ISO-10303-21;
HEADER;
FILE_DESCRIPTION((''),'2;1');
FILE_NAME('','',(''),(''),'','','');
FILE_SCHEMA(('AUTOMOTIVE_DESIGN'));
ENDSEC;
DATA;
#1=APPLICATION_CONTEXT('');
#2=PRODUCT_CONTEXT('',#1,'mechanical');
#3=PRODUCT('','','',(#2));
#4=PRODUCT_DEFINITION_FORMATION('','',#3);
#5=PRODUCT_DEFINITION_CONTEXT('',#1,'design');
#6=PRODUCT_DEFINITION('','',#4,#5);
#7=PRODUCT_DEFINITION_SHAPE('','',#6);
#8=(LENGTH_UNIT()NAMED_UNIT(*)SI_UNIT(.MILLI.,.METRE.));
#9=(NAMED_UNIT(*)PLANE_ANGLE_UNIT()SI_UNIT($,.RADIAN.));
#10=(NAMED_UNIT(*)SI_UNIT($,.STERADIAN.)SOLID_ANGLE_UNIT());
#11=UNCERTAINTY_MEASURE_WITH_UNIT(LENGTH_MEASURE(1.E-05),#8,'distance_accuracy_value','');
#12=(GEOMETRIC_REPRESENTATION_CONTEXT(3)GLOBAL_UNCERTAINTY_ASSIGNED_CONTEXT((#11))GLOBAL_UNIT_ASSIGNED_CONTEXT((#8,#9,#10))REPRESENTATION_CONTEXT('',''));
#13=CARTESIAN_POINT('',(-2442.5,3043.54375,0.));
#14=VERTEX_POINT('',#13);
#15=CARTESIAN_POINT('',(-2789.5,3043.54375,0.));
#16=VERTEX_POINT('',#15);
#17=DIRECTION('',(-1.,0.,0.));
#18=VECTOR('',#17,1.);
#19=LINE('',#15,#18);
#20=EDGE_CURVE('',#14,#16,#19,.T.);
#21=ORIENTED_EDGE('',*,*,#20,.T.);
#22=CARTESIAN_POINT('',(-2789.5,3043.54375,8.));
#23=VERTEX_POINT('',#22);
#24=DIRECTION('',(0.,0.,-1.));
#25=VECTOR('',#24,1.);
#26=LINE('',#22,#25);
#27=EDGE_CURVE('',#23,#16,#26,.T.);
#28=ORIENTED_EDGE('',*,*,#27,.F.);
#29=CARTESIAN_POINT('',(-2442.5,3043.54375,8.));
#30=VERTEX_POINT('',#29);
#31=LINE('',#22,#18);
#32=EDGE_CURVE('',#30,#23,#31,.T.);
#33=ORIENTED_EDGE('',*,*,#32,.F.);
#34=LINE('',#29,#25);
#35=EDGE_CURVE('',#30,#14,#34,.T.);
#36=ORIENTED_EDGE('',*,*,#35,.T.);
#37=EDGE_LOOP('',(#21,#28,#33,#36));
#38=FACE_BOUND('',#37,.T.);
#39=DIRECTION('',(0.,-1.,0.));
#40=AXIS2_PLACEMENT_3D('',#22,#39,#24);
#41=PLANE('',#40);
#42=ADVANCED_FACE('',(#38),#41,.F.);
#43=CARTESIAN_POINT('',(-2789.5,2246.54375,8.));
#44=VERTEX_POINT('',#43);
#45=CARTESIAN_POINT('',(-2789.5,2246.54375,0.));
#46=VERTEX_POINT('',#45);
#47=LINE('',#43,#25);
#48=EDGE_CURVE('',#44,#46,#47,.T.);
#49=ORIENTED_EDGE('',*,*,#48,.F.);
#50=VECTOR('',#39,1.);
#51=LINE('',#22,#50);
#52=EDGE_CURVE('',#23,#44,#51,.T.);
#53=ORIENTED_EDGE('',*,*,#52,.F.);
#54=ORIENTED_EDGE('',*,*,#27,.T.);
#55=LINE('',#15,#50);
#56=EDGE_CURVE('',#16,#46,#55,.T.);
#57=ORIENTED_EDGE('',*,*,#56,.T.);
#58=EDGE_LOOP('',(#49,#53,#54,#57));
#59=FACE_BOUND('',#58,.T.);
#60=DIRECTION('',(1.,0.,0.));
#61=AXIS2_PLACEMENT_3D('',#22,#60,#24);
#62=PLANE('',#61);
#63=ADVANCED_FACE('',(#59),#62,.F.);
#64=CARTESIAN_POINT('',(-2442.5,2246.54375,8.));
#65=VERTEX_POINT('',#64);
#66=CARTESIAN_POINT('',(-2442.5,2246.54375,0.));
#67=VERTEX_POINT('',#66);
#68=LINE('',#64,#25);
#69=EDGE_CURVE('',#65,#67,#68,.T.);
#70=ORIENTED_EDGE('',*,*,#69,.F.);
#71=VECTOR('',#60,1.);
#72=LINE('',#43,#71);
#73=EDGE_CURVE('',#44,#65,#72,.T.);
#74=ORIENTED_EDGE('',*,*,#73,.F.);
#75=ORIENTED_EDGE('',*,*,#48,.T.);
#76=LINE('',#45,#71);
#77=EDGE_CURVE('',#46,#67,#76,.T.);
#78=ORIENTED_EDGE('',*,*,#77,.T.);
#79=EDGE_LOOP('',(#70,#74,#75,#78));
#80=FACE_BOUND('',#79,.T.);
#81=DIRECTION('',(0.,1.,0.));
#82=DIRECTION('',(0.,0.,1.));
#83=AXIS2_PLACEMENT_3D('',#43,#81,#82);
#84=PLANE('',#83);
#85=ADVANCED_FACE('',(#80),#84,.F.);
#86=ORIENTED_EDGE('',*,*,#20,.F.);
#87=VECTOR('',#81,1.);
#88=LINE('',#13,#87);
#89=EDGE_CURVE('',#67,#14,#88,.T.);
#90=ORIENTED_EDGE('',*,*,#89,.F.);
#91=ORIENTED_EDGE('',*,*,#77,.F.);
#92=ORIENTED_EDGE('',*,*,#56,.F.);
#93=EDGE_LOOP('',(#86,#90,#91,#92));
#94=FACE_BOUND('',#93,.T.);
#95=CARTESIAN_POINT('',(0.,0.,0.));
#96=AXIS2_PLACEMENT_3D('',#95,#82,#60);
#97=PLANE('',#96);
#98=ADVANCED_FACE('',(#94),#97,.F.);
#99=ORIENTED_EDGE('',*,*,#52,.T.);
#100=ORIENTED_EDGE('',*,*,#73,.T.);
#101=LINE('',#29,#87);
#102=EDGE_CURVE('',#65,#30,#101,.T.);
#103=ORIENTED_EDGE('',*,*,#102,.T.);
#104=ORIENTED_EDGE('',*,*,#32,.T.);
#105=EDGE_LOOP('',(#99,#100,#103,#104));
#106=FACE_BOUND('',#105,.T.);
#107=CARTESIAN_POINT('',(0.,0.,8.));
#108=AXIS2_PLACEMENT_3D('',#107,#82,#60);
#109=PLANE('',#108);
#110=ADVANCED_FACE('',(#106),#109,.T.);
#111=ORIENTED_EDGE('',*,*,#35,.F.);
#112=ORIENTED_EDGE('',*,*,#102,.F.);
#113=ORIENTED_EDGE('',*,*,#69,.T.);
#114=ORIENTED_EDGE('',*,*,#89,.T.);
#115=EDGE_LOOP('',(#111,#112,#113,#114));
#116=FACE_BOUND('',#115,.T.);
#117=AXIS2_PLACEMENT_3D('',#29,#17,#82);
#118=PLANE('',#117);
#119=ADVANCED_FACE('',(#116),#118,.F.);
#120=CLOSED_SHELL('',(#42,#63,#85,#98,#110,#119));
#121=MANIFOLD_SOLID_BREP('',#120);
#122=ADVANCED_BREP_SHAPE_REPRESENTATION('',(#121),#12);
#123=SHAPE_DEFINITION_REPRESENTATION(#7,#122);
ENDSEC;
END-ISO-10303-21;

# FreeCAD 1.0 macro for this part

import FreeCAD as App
import Part
import Sketcher
from FreeCAD import Vector


def add_polygon(sketch, points):
    """Adds a closed chain of lines whose ends are joined by coincident constraints."""
    first, n = sketch.GeometryCount, len(points)
    for a, b in zip(points, points[1:] + points[:1]):
        sketch.addGeometry(Part.LineSegment(App.Vector(*a, 0), App.Vector(*b, 0)), False)
    for i in range(n):
        sketch.addConstraint(Sketcher.Constraint("Coincident", first + i, 2, first + (i + 1) % n, 1))

doc = App.newDocument("Part")
body = doc.addObject("PartDesign::Body", "Body")

# Sketch on XY plane
sketch1 = body.newObject("Sketcher::SketchObject", "Sketch")
sketch1.AttachmentSupport = (doc.getObject("XY_Plane"), [""])
sketch1.MapMode = "FlatFace"
add_polygon(sketch1, [(-2790, 3044), (-2790, 2247), (-2442, 2247), (-2442, 3044)])  # lines 0-3
sketch1.addConstraint(Sketcher.Constraint("Vertical", 0))
sketch1.addConstraint(Sketcher.Constraint("Horizontal", 1))
sketch1.addConstraint(Sketcher.Constraint("Vertical", 2))
sketch1.addConstraint(Sketcher.Constraint("Horizontal", 3))
sketch1.addConstraint(Sketcher.Constraint("DistanceX", 1, 1, 1, 2, 347.0))
sketch1.addConstraint(Sketcher.Constraint("DistanceY", 0, 2, 0, 1, 797.0))
sketch1.addConstraint(Sketcher.Constraint("DistanceX", 0, 2, -1, 1, 2789.5))
sketch1.addConstraint(Sketcher.Constraint("DistanceY", -1, 1, 0, 2, 2246.54375))
pad1 = body.newObject("PartDesign::Pad", "Pad")
pad1.Profile = sketch1
pad1.Length = 8

doc.recompute()
